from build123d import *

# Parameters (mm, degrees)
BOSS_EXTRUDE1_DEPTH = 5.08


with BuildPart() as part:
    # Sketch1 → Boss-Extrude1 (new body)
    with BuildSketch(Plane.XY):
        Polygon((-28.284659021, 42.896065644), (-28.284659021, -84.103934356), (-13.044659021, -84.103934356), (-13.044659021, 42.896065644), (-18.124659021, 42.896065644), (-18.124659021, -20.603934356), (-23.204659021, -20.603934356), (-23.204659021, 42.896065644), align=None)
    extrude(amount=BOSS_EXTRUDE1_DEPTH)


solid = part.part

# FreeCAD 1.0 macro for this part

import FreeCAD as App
import Part
import Sketcher
from FreeCAD import Vector
Q = App.Units.Quantity


def add_polygon(sketch, points):
    """Adds a closed chain of lines whose ends are joined by coincident constraints."""
    first, n = sketch.GeometryCount, len(points)
    for a, b in zip(points, points[1:] + points[:1]):
        sketch.addGeometry(Part.LineSegment(App.Vector(*a, 0), App.Vector(*b, 0)), False)
    for i in range(n):
        sketch.addConstraint(Sketcher.Constraint("Coincident", first + i, 2, first + (i + 1) % n, 1))

doc = App.newDocument("Part")
body = doc.addObject("PartDesign::Body", "Body")

sketch1 = doc.addObject("Sketcher::SketchObject", "Sketch")
body.addObject(sketch1)
sketch1.AttachmentSupport = (doc.XY_Plane, [""])
sketch1.MapMode = "FlatFace"
add_polygon(sketch1, [(-28, 43), (-28, -84), (-13, -84), (-13, 43), (-18, 43), (-18, -21), (-23, -21), (-23, 43)])
sketch1.addConstraint(Sketcher.Constraint("Vertical", 0))
sketch1.addConstraint(Sketcher.Constraint("Horizontal", 1))
sketch1.addConstraint(Sketcher.Constraint("Vertical", 2))
sketch1.addConstraint(Sketcher.Constraint("Horizontal", 3))
sketch1.addConstraint(Sketcher.Constraint("Vertical", 4))
sketch1.addConstraint(Sketcher.Constraint("Horizontal", 5))
sketch1.addConstraint(Sketcher.Constraint("Vertical", 6))
sketch1.addConstraint(Sketcher.Constraint("Horizontal", 7))
sketch1.addConstraint(Sketcher.Constraint("Horizontal", 3, 2, 6, 2))
sketch1.addConstraint(Sketcher.Constraint("Equal", 3, 5))
sketch1.addConstraint(Sketcher.Constraint("Equal", 5, 7))
sketch1.addConstraint(Sketcher.Constraint("DistanceY", 0, 2, 0, 1, Q("5 in")))
sketch1.addConstraint(Sketcher.Constraint("DistanceX", 1, 1, 1, 2, Q("0.6 in")))
sketch1.addConstraint(Sketcher.Constraint("DistanceY", 4, 2, 4, 1, Q("2.5 in")))
sketch1.addConstraint(Sketcher.Constraint("DistanceX", 0, 2, -1, 1, Q("28.284659 mm")))
sketch1.addConstraint(Sketcher.Constraint("DistanceY", 0, 2, -1, 1, Q("84.103934 mm")))
pad1 = doc.addObject("PartDesign::Pad", "Pad")
body.addObject(pad1)
pad1.Profile = sketch1
pad1.Length = Q("0.2 in")

doc.recompute()
